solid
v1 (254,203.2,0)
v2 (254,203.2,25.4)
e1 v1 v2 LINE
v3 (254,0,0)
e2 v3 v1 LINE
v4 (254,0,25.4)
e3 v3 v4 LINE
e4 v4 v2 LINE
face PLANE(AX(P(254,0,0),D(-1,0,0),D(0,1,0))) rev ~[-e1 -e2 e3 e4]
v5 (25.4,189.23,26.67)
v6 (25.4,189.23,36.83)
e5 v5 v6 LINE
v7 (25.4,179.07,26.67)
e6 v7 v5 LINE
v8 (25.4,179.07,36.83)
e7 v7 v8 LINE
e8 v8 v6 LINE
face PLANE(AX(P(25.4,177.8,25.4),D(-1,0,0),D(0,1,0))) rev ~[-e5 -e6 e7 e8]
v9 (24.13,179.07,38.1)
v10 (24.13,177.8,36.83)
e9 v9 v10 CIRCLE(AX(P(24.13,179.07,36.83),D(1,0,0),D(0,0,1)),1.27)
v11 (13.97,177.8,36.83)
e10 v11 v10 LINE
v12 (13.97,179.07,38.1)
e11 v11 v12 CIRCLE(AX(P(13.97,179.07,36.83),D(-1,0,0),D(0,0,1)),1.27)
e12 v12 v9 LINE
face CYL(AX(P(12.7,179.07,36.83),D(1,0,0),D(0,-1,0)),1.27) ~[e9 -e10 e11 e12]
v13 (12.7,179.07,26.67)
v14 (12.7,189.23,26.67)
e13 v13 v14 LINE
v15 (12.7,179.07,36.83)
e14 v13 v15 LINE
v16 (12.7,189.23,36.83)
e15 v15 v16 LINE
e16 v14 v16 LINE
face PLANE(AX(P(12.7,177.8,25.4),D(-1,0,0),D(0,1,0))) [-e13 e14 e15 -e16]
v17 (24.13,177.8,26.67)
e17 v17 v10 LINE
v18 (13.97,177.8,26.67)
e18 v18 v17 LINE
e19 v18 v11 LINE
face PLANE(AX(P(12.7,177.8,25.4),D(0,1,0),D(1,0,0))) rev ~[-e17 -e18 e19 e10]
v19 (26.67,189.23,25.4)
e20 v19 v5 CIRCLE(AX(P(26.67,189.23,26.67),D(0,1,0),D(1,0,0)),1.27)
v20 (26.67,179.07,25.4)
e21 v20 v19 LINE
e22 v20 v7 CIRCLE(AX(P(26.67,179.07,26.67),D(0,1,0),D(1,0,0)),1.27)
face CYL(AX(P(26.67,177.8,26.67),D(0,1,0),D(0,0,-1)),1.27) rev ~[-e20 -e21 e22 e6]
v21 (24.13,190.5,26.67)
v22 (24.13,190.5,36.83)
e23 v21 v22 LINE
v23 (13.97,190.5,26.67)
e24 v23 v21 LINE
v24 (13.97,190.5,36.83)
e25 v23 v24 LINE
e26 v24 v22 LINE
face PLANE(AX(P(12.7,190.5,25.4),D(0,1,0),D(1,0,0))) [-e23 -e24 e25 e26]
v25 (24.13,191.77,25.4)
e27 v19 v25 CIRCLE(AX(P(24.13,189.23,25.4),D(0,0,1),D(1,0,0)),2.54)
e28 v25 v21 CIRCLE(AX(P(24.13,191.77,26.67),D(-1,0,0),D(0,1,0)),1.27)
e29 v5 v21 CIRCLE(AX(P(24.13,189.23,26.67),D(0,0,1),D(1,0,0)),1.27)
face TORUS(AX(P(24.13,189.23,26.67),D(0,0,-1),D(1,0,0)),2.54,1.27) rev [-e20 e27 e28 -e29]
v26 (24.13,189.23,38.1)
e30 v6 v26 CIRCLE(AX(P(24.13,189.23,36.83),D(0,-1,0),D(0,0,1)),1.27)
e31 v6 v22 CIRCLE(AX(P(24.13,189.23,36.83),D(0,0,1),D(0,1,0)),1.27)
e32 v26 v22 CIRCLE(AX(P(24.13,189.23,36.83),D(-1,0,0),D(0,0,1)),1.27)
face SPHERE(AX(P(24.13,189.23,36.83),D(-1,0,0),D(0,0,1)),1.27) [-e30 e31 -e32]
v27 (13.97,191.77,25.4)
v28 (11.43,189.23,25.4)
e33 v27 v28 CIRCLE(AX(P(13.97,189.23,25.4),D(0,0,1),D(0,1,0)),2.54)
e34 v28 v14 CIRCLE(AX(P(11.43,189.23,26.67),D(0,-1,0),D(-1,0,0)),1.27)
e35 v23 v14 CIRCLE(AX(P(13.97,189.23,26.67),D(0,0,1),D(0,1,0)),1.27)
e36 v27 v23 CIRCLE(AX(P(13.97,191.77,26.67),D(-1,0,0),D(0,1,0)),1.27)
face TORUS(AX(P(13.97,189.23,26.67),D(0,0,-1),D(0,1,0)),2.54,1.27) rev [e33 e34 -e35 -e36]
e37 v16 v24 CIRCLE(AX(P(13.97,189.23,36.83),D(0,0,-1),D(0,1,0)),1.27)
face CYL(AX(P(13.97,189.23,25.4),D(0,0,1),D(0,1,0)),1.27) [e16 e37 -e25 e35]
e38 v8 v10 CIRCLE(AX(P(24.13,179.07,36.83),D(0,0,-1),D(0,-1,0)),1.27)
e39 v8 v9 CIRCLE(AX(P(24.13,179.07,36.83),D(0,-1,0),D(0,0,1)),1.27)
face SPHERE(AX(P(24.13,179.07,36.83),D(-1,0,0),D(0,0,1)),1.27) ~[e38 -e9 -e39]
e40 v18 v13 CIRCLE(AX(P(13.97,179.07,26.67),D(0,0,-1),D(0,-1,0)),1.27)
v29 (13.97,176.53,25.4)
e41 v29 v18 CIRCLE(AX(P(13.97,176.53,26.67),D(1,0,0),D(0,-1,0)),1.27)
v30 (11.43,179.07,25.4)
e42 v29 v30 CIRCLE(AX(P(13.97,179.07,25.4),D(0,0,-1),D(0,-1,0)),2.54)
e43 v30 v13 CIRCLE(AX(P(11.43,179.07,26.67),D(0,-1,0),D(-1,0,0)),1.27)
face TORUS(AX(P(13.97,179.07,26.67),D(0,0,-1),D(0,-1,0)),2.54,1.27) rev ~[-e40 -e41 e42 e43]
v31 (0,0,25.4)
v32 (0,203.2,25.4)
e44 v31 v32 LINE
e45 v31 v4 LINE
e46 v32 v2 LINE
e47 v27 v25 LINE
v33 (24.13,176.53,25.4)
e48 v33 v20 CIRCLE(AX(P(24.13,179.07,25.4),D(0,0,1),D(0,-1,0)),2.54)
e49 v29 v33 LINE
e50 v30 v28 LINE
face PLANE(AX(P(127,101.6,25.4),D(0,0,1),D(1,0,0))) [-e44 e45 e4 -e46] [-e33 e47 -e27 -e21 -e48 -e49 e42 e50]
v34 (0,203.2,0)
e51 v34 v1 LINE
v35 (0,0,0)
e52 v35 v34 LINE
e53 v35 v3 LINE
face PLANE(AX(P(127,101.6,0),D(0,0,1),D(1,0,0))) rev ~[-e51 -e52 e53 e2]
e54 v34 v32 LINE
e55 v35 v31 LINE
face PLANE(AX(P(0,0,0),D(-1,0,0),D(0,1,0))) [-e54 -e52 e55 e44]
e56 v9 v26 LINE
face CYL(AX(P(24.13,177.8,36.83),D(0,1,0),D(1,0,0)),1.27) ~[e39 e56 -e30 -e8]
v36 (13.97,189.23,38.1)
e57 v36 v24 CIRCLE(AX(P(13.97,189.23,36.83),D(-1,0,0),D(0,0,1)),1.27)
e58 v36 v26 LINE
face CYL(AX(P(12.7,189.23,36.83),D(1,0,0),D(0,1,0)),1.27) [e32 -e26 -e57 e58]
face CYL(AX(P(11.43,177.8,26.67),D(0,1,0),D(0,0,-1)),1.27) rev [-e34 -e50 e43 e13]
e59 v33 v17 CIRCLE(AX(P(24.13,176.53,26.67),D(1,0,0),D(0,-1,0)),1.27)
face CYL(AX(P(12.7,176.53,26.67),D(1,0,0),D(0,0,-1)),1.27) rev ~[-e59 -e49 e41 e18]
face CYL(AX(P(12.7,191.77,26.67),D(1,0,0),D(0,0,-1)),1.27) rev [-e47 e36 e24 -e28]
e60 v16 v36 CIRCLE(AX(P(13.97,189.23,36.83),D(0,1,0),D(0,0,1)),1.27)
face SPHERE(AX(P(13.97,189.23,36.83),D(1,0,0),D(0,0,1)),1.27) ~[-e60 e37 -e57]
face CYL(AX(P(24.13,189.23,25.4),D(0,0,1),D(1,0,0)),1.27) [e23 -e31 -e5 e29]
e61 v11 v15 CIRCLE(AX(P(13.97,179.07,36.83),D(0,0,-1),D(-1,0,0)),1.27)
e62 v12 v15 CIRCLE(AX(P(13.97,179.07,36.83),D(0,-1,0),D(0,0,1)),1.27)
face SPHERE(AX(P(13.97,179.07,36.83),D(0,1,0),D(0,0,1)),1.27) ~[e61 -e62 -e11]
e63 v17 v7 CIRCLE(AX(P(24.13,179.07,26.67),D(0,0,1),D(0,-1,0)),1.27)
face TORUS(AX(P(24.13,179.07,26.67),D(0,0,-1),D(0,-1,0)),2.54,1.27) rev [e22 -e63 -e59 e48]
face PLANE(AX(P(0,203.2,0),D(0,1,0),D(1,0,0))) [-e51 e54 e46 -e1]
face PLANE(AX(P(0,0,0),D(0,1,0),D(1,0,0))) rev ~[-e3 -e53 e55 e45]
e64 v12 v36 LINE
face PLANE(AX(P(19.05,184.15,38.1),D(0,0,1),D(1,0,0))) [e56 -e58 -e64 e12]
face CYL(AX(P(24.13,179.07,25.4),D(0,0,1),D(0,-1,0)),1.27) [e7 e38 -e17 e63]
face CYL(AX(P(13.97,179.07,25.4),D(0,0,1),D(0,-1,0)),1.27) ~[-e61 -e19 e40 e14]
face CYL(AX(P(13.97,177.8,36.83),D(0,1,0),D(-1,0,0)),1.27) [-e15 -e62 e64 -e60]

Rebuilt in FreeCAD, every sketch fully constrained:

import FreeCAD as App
import Part
import Sketcher
Q = App.Units.Quantity


def edges_at(feature, points):
    """Names of the edges that pass closest to the given points."""
    edges = feature.Shape.Edges
    near = lambda p: min(range(len(edges)), key=lambda i: edges[i].distToShape(Part.Vertex(*p))[0])
    return sorted({f"Edge{near(p) + 1}" for p in points})

doc = App.newDocument("Part")
body = doc.addObject("PartDesign::Body", "Body")

# Sketch on XY plane
sketch1 = body.newObject("Sketcher::SketchObject", "Sketch")
sketch1.AttachmentSupport = (doc.getObject("XY_Plane"), [""])
sketch1.MapMode = "FlatFace"
sketch1.addGeometry(Part.LineSegment(App.Vector(0, 203, 0), App.Vector(0, 0, 0)), False)
sketch1.addGeometry(Part.LineSegment(App.Vector(0, 0, 0), App.Vector(254, 0, 0)), False)
sketch1.addGeometry(Part.LineSegment(App.Vector(254, 0, 0), App.Vector(254, 203, 0)), False)
sketch1.addGeometry(Part.LineSegment(App.Vector(254, 203, 0), App.Vector(0, 203, 0)), False)
sketch1.addConstraint(Sketcher.Constraint("Coincident", 0, 2, 1, 1))
sketch1.addConstraint(Sketcher.Constraint("Coincident", 1, 2, 2, 1))
sketch1.addConstraint(Sketcher.Constraint("Coincident", 2, 2, 3, 1))
sketch1.addConstraint(Sketcher.Constraint("Coincident", 3, 2, 0, 1))
sketch1.addConstraint(Sketcher.Constraint("Vertical", 0))
sketch1.addConstraint(Sketcher.Constraint("Horizontal", 1))
sketch1.addConstraint(Sketcher.Constraint("Vertical", 2))
sketch1.addConstraint(Sketcher.Constraint("Horizontal", 3))
sketch1.addConstraint(Sketcher.Constraint("Coincident", 0, 2, -1, 1))
sketch1.addConstraint(Sketcher.Constraint("DistanceX", 1, 1, 1, 2, Q("10 in")))
sketch1.addConstraint(Sketcher.Constraint("DistanceY", 0, 2, 0, 1, Q("8 in")))
pad1 = body.newObject("PartDesign::Pad", "Pad")
pad1.Profile = sketch1
pad1.Length = Q("1 in")

# Sketch on XY plane
sketch2 = body.newObject("Sketcher::SketchObject", "Sketch001")
sketch2.AttachmentSupport = (doc.getObject("XY_Plane"), [""])
sketch2.MapMode = "FlatFace"
sketch2.AttachmentOffset = App.Placement(App.Vector(0, 0, 1 * 25.4), App.Rotation())
sketch2.addGeometry(Part.LineSegment(App.Vector(13, 190, 0), App.Vector(13, 178, 0)), False)
sketch2.addGeometry(Part.LineSegment(App.Vector(13, 178, 0), App.Vector(25, 178, 0)), False)
sketch2.addGeometry(Part.LineSegment(App.Vector(25, 178, 0), App.Vector(25, 190, 0)), False)
sketch2.addGeometry(Part.LineSegment(App.Vector(25, 190, 0), App.Vector(13, 190, 0)), False)
sketch2.addConstraint(Sketcher.Constraint("Coincident", 0, 2, 1, 1))
sketch2.addConstraint(Sketcher.Constraint("Coincident", 1, 2, 2, 1))
sketch2.addConstraint(Sketcher.Constraint("Coincident", 2, 2, 3, 1))
sketch2.addConstraint(Sketcher.Constraint("Coincident", 3, 2, 0, 1))
sketch2.addConstraint(Sketcher.Constraint("Vertical", 0))
sketch2.addConstraint(Sketcher.Constraint("Horizontal", 1))
sketch2.addConstraint(Sketcher.Constraint("Vertical", 2))
sketch2.addConstraint(Sketcher.Constraint("Horizontal", 3))
sketch2.addConstraint(Sketcher.Constraint("Equal", 3, 0))
sketch2.addConstraint(Sketcher.Constraint("DistanceX", 1, 1, 1, 2, Q("0.5 in")))
sketch2.addConstraint(Sketcher.Constraint("DistanceY", -1, 1, 0, 2, Q("7 in")))
sketch2.addConstraint(Sketcher.Constraint("DistanceX", -1, 1, 1, 2, Q("1 in")))
pad2 = body.newObject("PartDesign::Pad", "Pad001")
pad2.Profile = sketch2
pad2.Length = Q("0.5 in")
doc.recompute()

fillet = body.newObject("PartDesign::Fillet", "Fillet")
fillet.Base = (pad2, edges_at(pad2, [
    (19.05, 177.8, 25.4),
    (25.4, 184.15, 25.4),
    (19.05, 190.5, 25.4),
    (12.7, 184.15, 25.4),
    (19.05, 190.5, 38.1),
    (12.7, 184.15, 38.1),
    (19.05, 177.8, 38.1),
    (25.4, 184.15, 38.1),
    (12.7, 177.8, 31.75),
    (25.4, 177.8, 31.75),
    (25.4, 190.5, 31.75),
    (12.7, 190.5, 31.75),
]))
fillet.Radius = Q("0.05 in")

doc.recompute()
